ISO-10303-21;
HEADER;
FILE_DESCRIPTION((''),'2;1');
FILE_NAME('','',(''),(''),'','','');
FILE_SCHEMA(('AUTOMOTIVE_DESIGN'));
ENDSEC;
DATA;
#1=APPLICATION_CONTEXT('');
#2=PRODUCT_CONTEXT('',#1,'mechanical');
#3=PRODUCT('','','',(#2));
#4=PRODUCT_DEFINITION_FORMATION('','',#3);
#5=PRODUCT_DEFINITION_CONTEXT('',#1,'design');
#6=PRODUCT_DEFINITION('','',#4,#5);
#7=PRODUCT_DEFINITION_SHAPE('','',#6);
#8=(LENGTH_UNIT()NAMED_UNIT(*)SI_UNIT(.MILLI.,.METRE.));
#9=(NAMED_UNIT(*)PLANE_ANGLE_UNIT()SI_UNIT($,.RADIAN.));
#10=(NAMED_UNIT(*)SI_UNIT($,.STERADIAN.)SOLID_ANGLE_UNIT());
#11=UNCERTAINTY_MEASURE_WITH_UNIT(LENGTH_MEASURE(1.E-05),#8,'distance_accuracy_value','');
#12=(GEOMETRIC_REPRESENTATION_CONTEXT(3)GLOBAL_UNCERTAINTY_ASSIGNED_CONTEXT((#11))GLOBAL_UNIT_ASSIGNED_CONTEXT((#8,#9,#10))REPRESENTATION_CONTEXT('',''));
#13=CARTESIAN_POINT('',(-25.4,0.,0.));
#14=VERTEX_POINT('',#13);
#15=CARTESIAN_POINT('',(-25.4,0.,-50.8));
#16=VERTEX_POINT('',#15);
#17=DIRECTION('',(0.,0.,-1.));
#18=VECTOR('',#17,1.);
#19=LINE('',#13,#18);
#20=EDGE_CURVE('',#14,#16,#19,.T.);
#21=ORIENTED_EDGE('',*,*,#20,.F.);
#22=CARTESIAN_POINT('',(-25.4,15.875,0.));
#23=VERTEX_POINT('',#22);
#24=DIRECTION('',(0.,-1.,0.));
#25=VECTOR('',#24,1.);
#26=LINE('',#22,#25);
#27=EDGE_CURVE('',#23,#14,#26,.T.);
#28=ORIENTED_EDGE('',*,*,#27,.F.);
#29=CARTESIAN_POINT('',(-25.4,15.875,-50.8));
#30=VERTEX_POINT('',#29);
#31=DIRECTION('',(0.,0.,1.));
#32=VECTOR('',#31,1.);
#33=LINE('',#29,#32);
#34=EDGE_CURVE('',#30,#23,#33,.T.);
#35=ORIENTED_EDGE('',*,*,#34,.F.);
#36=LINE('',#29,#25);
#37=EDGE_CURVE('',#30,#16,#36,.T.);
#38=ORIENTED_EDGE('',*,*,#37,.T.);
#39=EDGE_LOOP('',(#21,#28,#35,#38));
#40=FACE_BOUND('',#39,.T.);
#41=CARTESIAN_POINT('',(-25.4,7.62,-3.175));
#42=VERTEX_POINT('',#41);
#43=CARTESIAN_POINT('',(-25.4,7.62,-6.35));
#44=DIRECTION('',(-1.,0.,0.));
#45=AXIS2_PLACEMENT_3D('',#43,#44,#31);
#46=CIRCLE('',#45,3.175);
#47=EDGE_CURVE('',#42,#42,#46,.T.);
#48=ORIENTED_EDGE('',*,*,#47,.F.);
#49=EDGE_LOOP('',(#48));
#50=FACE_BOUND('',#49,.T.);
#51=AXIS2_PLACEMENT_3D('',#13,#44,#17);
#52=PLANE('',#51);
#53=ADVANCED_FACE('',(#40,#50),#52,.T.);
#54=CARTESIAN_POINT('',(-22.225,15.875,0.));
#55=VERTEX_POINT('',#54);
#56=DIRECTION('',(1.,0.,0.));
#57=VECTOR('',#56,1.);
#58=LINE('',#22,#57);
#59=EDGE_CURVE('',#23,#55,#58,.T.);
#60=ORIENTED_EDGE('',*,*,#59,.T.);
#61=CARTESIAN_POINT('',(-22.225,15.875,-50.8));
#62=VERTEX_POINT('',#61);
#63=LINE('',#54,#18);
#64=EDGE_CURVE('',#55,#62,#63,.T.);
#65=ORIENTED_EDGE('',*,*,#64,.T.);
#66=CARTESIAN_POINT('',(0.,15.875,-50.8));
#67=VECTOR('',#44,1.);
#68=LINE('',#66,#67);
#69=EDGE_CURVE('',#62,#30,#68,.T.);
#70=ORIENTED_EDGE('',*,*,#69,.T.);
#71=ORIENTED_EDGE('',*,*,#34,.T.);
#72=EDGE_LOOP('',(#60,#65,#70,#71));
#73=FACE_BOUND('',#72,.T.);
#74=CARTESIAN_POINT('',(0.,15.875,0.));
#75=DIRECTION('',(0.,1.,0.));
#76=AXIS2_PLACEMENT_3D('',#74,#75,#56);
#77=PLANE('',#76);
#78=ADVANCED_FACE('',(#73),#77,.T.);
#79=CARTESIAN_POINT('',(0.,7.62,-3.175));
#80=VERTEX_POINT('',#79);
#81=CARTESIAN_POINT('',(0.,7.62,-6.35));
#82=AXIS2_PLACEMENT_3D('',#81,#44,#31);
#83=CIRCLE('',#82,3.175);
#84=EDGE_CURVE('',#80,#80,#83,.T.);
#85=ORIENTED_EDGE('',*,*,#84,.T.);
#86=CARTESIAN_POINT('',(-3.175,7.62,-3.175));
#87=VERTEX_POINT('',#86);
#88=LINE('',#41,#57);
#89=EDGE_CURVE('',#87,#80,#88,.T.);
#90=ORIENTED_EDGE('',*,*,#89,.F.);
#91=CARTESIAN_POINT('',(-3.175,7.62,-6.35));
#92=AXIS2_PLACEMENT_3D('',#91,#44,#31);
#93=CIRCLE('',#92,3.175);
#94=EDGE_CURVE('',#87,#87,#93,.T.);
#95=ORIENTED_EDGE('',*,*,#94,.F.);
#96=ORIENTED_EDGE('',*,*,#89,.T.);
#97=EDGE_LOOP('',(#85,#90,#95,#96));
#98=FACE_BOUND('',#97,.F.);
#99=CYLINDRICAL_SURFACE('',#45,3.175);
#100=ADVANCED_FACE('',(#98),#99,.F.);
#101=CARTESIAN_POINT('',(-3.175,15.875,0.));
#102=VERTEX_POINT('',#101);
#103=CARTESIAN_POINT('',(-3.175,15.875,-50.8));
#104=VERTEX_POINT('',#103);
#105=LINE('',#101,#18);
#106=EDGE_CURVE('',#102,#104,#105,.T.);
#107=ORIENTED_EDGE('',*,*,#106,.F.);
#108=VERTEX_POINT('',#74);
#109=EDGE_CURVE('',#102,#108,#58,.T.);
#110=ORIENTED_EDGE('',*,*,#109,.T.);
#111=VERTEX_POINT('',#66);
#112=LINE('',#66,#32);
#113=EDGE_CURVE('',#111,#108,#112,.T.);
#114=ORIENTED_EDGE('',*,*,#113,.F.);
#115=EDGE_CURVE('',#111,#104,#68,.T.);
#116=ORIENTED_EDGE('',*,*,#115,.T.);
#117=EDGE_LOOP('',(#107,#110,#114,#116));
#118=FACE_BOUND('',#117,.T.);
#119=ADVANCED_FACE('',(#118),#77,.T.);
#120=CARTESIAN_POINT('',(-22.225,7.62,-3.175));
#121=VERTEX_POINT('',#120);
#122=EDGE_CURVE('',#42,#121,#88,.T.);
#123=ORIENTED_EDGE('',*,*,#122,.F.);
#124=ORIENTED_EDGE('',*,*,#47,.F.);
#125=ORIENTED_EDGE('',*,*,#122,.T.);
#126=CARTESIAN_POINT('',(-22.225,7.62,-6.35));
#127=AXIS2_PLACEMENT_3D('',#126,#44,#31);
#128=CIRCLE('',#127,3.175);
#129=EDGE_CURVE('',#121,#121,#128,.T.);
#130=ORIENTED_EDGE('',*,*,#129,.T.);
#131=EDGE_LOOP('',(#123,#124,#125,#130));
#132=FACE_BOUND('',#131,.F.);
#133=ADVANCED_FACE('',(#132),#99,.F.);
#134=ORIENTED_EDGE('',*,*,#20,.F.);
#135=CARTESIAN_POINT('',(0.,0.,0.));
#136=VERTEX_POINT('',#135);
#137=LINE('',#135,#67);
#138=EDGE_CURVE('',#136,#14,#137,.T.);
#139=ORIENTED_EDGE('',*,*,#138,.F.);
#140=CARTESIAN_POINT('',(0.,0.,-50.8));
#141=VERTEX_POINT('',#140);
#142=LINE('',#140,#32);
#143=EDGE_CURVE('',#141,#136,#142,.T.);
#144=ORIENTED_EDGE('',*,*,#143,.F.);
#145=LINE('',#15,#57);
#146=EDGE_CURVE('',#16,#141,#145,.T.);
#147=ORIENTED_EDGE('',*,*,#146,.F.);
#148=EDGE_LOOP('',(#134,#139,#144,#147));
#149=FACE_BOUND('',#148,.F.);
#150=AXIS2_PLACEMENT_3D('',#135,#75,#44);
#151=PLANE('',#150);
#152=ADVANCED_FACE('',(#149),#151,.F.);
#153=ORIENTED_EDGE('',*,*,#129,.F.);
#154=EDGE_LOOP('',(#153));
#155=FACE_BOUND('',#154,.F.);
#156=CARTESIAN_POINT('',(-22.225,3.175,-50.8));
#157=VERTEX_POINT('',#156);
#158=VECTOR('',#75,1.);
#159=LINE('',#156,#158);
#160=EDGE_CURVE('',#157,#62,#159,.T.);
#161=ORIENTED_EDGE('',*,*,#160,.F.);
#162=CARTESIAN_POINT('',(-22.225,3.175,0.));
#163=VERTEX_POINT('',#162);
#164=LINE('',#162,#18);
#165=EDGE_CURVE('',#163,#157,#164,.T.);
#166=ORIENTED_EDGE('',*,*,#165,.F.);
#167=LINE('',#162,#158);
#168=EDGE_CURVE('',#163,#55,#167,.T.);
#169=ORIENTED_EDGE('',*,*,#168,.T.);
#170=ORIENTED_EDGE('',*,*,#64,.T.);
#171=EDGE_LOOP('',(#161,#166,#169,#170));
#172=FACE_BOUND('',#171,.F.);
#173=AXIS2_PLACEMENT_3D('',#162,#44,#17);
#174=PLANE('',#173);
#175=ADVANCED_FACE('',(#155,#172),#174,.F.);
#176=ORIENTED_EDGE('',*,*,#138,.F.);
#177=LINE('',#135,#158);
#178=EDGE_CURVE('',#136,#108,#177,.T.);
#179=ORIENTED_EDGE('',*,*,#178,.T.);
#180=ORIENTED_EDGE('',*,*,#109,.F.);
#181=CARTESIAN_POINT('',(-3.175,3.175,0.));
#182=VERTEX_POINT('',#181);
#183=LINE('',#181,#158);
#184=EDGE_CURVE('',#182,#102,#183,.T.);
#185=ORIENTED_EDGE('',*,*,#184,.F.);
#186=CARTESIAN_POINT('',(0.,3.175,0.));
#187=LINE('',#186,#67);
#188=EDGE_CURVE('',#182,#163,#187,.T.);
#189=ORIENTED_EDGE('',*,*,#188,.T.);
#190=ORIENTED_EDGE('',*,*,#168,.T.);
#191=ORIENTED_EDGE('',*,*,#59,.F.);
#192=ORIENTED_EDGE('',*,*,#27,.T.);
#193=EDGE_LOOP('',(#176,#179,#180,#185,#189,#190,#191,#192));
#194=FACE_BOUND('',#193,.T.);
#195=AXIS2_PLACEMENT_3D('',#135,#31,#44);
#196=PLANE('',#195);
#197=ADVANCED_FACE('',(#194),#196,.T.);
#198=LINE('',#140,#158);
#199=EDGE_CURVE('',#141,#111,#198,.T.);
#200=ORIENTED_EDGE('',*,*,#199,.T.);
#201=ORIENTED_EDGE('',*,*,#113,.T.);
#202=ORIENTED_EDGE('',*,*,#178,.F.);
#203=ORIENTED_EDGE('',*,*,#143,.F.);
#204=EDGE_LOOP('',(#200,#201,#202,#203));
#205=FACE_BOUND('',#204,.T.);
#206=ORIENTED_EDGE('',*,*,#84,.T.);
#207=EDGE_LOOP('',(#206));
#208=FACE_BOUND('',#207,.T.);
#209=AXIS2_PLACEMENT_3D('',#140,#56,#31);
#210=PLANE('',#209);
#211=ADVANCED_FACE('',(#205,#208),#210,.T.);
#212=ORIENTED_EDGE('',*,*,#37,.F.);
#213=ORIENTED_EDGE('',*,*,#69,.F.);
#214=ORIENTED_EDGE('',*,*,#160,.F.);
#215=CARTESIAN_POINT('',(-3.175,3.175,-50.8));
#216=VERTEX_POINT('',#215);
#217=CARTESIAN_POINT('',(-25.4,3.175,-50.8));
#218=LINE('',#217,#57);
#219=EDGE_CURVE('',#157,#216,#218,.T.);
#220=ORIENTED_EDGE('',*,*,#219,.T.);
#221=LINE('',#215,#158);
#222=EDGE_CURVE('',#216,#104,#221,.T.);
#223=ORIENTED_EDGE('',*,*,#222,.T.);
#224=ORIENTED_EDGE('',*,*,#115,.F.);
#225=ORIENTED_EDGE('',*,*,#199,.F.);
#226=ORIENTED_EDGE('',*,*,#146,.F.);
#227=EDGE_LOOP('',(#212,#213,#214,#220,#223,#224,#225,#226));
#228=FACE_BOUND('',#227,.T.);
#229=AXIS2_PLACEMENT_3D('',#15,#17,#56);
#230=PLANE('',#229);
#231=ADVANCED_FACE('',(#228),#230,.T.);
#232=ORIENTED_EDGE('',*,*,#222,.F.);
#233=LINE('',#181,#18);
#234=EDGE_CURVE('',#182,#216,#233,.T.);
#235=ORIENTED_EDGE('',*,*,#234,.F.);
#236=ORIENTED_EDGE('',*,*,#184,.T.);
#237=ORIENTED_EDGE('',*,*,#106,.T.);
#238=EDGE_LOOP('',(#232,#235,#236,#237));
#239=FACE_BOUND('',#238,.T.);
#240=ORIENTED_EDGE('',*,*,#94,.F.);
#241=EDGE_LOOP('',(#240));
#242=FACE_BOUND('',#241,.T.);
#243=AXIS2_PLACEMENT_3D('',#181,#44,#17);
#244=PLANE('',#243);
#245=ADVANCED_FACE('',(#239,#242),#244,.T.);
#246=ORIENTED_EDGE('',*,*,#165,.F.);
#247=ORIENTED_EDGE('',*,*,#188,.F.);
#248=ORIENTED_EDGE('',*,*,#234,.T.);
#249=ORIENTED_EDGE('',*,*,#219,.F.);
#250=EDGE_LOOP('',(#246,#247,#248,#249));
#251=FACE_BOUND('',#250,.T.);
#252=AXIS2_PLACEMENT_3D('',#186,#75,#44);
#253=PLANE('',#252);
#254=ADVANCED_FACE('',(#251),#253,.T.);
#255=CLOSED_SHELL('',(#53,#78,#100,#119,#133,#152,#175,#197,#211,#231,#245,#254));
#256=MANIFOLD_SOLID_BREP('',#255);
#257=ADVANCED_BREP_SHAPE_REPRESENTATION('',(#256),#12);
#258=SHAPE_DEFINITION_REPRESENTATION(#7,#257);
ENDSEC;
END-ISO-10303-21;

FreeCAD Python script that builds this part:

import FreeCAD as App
import Part
import Sketcher

V = App.Vector
Q = App.Units.Quantity


def add_polygon(sketch, points):
    """Adds a closed chain of lines whose ends are joined by coincident constraints."""
    first, n = sketch.GeometryCount, len(points)
    for a, b in zip(points, points[1:] + points[:1]):
        sketch.addGeometry(Part.LineSegment(App.Vector(*a, 0), App.Vector(*b, 0)), False)
    for i in range(n):
        sketch.addConstraint(Sketcher.Constraint("Coincident", first + i, 2, first + (i + 1) % n, 1))

doc = App.newDocument("Part")
params = doc.addObject("Spreadsheet::Sheet", "Params")
for row, (alias, value) in enumerate([
    ("sketch1_width", "1 in"),
    ("sketch1_height", "2 in"),
    ("pad1_length", "0.125 in"),
    ("sketch2_width", "0.125 in"),
    ("sketch2_height", "2 in"),
    ("pad2_length", "0.5 in"),
    ("sketch3_diameter", "0.25 in"),
    ("pocket1_length", "1 in"),
], start=1):
    params.set(f"A{row}", alias)
    params.set(f"B{row}", "=" + value)
    params.setAlias(f"B{row}", alias)

body = doc.addObject("PartDesign::Body", "Body")

sketch1 = doc.addObject("Sketcher::SketchObject", "Sketch")
body.addObject(sketch1)
sketch1.AttachmentSupport = (doc.XZ_Plane, [""])
sketch1.MapMode = "FlatFace"
add_polygon(sketch1, [(-25, 0), (0, 0), (0, -51), (-25, -51)])
sketch1.addConstraint(Sketcher.Constraint("Horizontal", 0))
sketch1.addConstraint(Sketcher.Constraint("Vertical", 1))
sketch1.addConstraint(Sketcher.Constraint("Horizontal", 2))
sketch1.addConstraint(Sketcher.Constraint("Vertical", 3))
sketch1.addConstraint(Sketcher.Constraint("Coincident", 0, 2, -1, 1))
sketch1.addConstraint(Sketcher.Constraint("DistanceX", 0, 1, 0, 2, Q("1 in")))
sketch1.addConstraint(Sketcher.Constraint("DistanceY", 1, 2, 1, 1, Q("2 in")))
sketch1.setExpression("Constraints[9]", "Params.sketch1_width")
sketch1.setExpression("Constraints[10]", "Params.sketch1_height")
pad1 = doc.addObject("PartDesign::Pad", "Pad")
body.addObject(pad1)
pad1.Profile = sketch1
pad1.setExpression("Length", "Params.pad1_length")
pad1.Reversed = True

sketch2 = doc.addObject("Sketcher::SketchObject", "Sketch001")
body.addObject(sketch2)
sketch2.AttachmentSupport = (doc.XZ_Plane, [""])
sketch2.MapMode = "FlatFace"
sketch2.AttachmentOffset = App.Placement(V(0, 0, -0.125 * 25.4), App.Rotation())
add_polygon(sketch2, [(-25.4, -50.8), (-25.4, 0), (-22.2, 0), (-22.2, -50.8)])
add_polygon(sketch2, [(-3.2, -50.8), (-3.2, 0), (0, 0), (0, -50.8)])
sketch2.addConstraint(Sketcher.Constraint("Vertical", 0))
sketch2.addConstraint(Sketcher.Constraint("Horizontal", 1))
sketch2.addConstraint(Sketcher.Constraint("Vertical", 2))
sketch2.addConstraint(Sketcher.Constraint("Horizontal", 3))
sketch2.addConstraint(Sketcher.Constraint("Vertical", 4))
sketch2.addConstraint(Sketcher.Constraint("Horizontal", 5))
sketch2.addConstraint(Sketcher.Constraint("Vertical", 6))
sketch2.addConstraint(Sketcher.Constraint("Horizontal", 7))
sketch2.addConstraint(Sketcher.Constraint("Coincident", 5, 2, -1, 1))
sketch2.addConstraint(Sketcher.Constraint("PointOnObject", 0, 2, -1))
sketch2.addConstraint(Sketcher.Constraint("Horizontal", 3, 2, 6, 2))
sketch2.addConstraint(Sketcher.Constraint("Equal", 3, 5))
sketch2.addConstraint(Sketcher.Constraint("DistanceX", 1, 1, 1, 2, Q("0.125 in")))
sketch2.addConstraint(Sketcher.Constraint("DistanceY", 0, 1, 0, 2, Q("2 in")))
sketch2.addConstraint(Sketcher.Constraint("DistanceX", 0, 2, -1, 1, Q("1 in")))
sketch2.setExpression("Constraints[20]", "Params.sketch2_width")
sketch2.setExpression("Constraints[21]", "Params.sketch2_height")
pad2 = doc.addObject("PartDesign::Pad", "Pad001")
body.addObject(pad2)
pad2.Profile = sketch2
pad2.setExpression("Length", "Params.pad2_length")
pad2.Reversed = True

sketch3 = doc.addObject("Sketcher::SketchObject", "Sketch002")
body.addObject(sketch3)
sketch3.AttachmentSupport = (doc.YZ_Plane, [""])
sketch3.MapMode = "FlatFace"
sketch3.AttachmentOffset = App.Placement(V(0, 0, -1 * 25.4), App.Rotation())
sketch3.addGeometry(Part.Circle(V(7.6, -6.3, 0), V(0, 0, 1), 3.2), False)
sketch3.addConstraint(Sketcher.Constraint("Diameter", 0, Q("0.25 in")))
sketch3.addConstraint(Sketcher.Constraint("DistanceX", -1, 1, 0, 3, Q("0.3 in")))
sketch3.addConstraint(Sketcher.Constraint("DistanceY", 0, 3, -1, 1, Q("0.25 in")))
sketch3.setExpression("Constraints[0]", "Params.sketch3_diameter")
pocket1 = doc.addObject("PartDesign::Pocket", "Pocket")
body.addObject(pocket1)
pocket1.Profile = sketch3
pocket1.setExpression("Length", "Params.pocket1_length")
pocket1.Reversed = True

doc.recompute()
